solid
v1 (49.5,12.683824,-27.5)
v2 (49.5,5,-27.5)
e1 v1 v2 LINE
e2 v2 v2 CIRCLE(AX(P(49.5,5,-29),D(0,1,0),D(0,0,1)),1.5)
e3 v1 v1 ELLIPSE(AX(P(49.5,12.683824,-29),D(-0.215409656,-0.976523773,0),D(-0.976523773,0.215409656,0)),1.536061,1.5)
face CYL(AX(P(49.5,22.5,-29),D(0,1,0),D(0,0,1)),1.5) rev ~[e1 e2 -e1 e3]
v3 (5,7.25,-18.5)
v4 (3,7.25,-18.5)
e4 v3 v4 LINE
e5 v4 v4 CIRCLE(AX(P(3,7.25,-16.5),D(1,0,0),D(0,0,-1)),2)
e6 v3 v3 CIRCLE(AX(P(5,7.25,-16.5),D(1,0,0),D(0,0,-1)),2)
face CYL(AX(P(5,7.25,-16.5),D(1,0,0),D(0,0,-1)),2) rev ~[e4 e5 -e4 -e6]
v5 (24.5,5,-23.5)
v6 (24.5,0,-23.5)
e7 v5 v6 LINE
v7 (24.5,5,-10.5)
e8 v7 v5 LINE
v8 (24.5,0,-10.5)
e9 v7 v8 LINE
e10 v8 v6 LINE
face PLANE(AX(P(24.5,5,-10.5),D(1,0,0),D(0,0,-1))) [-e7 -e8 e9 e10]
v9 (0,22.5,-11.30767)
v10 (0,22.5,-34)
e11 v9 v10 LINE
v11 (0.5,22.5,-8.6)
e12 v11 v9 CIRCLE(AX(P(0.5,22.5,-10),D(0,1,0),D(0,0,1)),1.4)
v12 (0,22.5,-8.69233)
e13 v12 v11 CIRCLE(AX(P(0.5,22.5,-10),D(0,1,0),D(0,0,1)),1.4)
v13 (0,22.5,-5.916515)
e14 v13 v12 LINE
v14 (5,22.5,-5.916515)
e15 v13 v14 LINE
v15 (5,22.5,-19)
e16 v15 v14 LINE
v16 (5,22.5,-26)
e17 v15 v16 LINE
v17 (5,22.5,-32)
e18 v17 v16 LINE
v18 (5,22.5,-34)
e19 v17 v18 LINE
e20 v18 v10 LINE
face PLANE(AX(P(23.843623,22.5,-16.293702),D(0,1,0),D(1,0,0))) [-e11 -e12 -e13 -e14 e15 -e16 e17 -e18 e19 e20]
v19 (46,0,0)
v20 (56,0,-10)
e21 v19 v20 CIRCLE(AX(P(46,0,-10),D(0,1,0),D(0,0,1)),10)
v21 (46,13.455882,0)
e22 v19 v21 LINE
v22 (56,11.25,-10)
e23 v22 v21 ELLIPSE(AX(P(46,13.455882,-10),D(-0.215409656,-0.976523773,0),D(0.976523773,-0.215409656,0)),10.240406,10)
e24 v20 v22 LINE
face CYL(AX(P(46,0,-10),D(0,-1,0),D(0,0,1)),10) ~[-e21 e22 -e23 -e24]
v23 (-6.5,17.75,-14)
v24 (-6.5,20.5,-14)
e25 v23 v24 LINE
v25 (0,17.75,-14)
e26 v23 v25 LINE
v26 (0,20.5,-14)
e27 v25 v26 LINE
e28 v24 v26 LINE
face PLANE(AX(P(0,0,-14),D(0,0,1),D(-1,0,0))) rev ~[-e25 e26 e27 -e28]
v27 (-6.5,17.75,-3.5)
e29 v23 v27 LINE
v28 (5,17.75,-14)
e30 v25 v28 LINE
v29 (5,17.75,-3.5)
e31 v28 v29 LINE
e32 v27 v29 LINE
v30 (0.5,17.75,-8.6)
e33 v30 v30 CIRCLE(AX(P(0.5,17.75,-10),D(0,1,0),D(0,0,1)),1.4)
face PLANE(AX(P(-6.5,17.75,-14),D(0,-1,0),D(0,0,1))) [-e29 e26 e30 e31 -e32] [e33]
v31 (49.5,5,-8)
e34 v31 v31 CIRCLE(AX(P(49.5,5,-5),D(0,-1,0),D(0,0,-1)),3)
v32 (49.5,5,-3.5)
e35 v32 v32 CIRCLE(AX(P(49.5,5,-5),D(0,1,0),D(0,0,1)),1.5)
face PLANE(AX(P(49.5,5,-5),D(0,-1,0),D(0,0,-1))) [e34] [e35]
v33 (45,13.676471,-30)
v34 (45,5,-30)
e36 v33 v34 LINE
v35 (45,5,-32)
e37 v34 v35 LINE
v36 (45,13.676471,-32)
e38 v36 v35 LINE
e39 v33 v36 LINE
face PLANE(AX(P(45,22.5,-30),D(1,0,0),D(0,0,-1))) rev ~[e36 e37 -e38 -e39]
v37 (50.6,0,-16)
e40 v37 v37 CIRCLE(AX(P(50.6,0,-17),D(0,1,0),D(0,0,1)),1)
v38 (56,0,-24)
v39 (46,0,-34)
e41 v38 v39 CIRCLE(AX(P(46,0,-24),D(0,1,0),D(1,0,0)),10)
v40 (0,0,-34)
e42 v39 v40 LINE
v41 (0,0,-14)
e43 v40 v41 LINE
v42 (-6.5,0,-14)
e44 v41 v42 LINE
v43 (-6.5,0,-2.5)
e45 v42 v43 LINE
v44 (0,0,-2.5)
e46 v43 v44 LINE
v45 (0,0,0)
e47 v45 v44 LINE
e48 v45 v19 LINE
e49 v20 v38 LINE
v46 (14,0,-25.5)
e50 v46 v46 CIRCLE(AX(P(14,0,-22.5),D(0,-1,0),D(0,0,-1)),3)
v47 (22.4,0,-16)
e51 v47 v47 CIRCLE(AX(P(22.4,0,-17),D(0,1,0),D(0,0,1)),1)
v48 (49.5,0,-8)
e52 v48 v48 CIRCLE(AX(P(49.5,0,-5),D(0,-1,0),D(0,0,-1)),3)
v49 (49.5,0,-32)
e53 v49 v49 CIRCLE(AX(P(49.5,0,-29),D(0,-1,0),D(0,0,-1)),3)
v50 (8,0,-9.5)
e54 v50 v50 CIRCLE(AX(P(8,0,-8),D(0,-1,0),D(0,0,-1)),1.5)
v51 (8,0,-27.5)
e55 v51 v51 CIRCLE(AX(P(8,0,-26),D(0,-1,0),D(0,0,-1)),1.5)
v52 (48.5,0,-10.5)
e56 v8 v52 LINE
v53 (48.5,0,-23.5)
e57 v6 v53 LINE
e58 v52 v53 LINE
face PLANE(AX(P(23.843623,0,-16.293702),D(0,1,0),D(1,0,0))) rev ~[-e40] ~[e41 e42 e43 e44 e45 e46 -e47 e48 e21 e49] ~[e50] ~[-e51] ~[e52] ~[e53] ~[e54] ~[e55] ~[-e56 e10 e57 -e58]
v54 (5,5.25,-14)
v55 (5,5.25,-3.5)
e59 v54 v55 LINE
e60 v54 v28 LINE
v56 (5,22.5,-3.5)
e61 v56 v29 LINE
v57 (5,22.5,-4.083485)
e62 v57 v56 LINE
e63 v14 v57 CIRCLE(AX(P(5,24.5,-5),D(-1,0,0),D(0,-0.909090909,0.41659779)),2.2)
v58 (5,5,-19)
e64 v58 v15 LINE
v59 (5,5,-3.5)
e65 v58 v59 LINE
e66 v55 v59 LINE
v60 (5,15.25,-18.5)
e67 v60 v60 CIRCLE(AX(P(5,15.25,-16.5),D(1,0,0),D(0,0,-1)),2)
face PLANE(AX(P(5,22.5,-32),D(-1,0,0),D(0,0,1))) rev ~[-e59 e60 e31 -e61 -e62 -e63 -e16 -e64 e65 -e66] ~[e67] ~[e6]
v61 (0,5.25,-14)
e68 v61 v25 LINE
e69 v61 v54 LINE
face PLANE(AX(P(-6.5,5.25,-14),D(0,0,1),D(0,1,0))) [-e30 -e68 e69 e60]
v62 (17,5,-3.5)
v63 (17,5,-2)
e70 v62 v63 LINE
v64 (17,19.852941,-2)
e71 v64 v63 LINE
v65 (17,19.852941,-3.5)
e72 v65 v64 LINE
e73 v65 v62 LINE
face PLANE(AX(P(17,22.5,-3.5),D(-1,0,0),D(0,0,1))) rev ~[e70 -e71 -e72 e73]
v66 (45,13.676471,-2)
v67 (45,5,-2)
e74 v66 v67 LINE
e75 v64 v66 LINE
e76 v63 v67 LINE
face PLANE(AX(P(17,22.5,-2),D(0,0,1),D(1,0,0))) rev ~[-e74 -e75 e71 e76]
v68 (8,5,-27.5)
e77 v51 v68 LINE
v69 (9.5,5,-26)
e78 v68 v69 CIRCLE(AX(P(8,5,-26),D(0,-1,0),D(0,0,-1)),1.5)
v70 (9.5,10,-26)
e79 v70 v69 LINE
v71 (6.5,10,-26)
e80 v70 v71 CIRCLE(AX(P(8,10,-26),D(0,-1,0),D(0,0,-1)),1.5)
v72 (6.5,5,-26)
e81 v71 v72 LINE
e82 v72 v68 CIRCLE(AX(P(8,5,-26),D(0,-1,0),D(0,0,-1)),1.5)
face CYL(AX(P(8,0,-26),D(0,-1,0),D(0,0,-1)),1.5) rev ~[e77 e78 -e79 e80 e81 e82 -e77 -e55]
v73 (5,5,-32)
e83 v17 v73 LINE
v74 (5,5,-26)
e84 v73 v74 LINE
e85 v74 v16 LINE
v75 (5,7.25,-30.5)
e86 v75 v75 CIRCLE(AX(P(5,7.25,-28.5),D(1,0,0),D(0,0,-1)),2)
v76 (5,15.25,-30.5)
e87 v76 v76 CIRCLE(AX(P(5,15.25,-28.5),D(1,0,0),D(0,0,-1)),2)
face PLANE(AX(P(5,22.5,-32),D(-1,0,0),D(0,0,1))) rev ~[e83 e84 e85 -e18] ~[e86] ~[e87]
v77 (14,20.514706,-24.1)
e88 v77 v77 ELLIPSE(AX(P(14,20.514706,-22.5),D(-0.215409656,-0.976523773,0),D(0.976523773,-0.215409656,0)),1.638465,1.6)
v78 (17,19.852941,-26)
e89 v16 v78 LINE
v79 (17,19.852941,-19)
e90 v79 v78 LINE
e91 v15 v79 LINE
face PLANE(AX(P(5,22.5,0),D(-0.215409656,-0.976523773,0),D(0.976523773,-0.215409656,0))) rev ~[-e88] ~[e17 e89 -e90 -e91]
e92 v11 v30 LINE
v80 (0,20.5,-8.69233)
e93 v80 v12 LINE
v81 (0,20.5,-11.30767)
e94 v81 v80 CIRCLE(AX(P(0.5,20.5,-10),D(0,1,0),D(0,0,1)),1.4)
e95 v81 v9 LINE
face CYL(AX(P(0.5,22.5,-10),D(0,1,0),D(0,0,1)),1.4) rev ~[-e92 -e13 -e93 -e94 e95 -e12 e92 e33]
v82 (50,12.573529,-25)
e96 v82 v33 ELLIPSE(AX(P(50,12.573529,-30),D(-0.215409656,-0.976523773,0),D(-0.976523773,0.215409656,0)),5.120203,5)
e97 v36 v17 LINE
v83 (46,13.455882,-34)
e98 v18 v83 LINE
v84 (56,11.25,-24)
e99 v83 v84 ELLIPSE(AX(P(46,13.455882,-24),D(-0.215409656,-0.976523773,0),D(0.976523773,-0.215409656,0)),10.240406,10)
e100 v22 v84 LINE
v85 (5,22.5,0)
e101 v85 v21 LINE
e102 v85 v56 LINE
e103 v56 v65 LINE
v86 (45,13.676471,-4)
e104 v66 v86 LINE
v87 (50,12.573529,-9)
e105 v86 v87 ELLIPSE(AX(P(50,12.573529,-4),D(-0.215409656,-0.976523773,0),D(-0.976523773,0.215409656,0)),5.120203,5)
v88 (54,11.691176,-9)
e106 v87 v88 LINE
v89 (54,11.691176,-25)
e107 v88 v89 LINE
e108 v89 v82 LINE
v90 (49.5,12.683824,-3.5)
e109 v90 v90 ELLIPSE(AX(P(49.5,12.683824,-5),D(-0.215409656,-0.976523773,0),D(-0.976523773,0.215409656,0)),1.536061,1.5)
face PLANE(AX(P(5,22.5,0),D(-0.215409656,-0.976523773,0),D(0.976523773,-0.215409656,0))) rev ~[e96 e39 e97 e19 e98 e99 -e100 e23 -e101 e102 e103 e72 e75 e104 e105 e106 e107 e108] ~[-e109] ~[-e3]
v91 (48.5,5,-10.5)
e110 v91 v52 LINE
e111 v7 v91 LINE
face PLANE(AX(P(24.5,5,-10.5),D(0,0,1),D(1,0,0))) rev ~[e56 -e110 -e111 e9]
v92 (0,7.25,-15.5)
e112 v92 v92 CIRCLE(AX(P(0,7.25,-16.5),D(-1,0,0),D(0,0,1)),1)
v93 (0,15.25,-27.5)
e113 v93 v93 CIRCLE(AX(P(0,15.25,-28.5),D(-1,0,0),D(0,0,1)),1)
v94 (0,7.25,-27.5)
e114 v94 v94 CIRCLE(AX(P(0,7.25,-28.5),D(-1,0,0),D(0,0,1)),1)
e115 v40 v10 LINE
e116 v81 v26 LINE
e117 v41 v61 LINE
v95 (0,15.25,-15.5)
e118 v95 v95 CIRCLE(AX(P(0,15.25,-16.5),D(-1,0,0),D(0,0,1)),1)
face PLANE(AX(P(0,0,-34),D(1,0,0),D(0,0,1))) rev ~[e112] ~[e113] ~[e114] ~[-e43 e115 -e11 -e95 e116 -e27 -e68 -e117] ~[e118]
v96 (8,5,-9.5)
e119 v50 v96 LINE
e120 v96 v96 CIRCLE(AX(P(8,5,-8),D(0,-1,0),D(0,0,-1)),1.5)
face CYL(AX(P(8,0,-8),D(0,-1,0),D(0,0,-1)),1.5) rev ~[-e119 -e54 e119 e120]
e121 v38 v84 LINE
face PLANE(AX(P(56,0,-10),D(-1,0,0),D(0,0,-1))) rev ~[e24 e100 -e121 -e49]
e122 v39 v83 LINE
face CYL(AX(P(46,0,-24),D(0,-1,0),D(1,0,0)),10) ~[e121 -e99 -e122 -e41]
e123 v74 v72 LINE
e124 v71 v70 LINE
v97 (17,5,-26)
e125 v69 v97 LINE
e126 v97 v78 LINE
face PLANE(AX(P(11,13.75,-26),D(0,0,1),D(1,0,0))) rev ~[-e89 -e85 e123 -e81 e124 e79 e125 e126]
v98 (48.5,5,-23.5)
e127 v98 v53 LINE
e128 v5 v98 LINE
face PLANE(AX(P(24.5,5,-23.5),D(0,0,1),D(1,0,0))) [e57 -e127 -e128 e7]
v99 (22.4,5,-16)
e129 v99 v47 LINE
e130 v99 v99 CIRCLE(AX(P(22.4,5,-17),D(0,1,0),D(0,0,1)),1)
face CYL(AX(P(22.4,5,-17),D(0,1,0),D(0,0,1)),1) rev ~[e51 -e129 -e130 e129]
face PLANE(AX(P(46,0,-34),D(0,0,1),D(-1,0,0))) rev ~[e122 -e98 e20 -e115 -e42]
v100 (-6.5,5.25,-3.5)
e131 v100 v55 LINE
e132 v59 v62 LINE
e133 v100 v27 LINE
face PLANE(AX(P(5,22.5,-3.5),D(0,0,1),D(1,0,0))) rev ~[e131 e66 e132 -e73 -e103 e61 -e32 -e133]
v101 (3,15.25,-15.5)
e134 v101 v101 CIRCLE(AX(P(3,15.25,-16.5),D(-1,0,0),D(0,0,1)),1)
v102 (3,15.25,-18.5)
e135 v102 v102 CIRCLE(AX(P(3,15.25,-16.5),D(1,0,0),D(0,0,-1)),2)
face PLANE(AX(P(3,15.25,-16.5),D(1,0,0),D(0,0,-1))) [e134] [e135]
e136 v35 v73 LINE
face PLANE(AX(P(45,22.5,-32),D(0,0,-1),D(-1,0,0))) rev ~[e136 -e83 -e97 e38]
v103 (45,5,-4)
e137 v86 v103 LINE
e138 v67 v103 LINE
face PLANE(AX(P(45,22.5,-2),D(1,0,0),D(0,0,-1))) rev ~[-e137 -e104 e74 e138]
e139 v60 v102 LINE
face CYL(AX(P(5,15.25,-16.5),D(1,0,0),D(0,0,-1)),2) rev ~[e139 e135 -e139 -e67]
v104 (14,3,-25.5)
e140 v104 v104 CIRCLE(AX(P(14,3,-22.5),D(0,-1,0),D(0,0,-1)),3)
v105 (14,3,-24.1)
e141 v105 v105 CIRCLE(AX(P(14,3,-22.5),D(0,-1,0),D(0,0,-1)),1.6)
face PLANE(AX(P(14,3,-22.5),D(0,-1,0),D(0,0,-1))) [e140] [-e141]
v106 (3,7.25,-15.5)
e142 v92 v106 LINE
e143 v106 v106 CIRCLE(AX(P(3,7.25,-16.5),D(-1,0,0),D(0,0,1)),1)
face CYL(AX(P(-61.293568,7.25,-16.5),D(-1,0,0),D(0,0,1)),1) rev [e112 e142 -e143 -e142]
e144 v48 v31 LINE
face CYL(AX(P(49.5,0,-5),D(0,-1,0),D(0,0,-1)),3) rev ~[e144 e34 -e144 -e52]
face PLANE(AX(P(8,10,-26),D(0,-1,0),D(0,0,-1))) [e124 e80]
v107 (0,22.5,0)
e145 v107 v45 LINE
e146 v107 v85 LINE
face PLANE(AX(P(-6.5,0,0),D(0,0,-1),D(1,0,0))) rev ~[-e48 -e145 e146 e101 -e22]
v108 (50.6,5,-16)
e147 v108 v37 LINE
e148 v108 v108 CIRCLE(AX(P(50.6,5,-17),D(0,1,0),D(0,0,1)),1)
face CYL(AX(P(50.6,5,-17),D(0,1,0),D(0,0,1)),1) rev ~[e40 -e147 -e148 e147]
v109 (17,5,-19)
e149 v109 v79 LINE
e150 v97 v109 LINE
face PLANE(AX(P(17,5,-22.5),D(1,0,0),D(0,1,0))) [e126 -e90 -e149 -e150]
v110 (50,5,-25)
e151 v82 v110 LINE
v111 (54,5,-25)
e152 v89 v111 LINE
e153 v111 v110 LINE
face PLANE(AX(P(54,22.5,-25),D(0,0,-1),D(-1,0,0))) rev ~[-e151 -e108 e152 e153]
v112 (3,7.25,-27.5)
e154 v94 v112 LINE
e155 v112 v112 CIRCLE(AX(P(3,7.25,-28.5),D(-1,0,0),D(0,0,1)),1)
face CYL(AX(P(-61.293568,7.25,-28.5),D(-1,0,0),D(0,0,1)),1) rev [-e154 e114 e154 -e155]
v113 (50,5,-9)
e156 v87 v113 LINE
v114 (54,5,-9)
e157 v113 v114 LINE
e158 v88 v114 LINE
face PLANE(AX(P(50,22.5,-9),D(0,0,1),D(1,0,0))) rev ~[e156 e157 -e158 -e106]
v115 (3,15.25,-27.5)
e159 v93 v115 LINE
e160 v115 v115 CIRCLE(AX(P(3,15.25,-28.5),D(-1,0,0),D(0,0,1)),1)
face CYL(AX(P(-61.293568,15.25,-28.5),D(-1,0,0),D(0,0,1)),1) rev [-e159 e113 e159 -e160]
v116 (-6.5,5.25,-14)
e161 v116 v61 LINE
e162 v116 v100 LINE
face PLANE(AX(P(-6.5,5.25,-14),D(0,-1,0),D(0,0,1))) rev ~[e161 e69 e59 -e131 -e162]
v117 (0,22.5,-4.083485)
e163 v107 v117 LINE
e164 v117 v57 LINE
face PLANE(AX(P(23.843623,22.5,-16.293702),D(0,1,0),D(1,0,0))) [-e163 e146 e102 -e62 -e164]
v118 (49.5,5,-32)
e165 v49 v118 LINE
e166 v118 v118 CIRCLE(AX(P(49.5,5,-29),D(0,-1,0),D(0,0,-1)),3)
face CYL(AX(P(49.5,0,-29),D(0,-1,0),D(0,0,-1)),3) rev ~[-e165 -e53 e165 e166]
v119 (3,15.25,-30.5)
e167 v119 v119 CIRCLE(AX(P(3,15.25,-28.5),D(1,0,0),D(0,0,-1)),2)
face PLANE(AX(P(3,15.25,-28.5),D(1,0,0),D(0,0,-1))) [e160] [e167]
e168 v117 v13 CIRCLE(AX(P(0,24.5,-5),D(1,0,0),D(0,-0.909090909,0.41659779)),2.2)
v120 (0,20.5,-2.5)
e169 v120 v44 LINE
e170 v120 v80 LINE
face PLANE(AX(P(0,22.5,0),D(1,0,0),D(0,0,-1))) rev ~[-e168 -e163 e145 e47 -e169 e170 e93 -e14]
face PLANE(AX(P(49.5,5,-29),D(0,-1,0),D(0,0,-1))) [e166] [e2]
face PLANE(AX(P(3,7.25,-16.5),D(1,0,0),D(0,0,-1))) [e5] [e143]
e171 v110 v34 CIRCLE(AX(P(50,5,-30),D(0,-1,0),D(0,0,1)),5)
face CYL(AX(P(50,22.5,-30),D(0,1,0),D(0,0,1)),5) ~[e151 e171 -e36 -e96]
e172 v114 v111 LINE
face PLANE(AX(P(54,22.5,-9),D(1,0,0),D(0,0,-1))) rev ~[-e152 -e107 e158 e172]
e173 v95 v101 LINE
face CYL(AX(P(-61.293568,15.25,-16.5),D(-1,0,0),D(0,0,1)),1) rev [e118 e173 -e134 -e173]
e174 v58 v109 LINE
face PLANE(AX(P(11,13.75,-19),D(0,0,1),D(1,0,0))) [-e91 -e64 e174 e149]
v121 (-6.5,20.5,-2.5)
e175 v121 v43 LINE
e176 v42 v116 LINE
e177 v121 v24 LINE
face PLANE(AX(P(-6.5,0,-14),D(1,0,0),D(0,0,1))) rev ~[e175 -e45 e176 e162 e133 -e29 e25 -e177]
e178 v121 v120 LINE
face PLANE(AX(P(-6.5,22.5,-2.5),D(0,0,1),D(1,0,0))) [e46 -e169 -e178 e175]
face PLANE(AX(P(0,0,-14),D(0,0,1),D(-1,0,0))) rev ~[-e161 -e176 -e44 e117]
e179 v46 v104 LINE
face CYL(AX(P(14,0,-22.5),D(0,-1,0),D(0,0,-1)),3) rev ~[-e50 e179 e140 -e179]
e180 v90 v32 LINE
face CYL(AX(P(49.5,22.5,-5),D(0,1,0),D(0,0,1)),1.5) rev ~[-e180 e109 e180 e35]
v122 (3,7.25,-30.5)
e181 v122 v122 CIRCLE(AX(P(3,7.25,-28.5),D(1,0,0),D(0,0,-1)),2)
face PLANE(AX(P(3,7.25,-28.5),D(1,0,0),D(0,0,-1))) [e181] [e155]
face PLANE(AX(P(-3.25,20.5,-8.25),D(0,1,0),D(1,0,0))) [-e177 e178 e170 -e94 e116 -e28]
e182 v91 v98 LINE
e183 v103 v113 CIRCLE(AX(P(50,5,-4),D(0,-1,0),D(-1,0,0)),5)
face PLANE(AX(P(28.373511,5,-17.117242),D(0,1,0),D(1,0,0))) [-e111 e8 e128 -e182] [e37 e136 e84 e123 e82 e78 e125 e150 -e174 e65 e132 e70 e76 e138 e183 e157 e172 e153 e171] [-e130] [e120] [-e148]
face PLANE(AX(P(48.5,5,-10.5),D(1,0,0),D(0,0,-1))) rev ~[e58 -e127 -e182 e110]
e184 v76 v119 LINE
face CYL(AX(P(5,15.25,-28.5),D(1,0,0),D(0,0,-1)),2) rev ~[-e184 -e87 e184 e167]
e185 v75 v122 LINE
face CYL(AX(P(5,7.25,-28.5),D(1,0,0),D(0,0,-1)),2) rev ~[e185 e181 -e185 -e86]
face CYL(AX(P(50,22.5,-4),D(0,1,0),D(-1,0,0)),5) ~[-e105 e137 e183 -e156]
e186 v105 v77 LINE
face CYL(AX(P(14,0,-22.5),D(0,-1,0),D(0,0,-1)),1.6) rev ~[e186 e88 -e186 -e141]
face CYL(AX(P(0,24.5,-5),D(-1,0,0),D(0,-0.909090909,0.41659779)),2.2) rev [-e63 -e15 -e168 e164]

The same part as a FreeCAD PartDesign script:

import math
import FreeCAD as App
import Part
import Sketcher
from FreeCAD import Vector

doc = App.newDocument("Part")
body = doc.addObject("PartDesign::Body", "Body")

sketch1 = body.newObject("Sketcher::SketchObject", "Sketch")
sketch1.AttachmentSupport = (doc.getObject("XZ_Plane"), [""])
sketch1.MapMode = "FlatFace"
sketch1.addGeometry([
    Part.ArcOfCircle(Part.Circle(Vector(46, -10, 0), Vector(0, 0, 1), 10), math.radians(0), math.radians(90)),
    Part.LineSegment(Vector(56, -10, 0), Vector(56, -24, 0)),
    Part.ArcOfCircle(Part.Circle(Vector(46, -24, 0), Vector(0, 0, 1), 10), math.radians(-90), math.radians(0)),
    Part.LineSegment(Vector(46, -34, 0), Vector(0, -34, 0)),
    Part.LineSegment(Vector(0, -34, 0), Vector(0, -14, 0)),
    Part.LineSegment(Vector(0, -14, 0), Vector(-6.5, -14, 0)),
    Part.LineSegment(Vector(-6.5, -14, 0), Vector(-6.5, 0, 0)),
    Part.LineSegment(Vector(-6.5, 0, 0), Vector(46, 0, 0)),
], False)
sketch1.addConstraint([
    Sketcher.Constraint("Tangent", 0, 1, 1, 1),
    Sketcher.Constraint("Tangent", 1, 2, 2, 2),
    Sketcher.Constraint("Tangent", 2, 1, 3, 1),
    Sketcher.Constraint("Coincident", 3, 2, 4, 1),
    Sketcher.Constraint("Coincident", 4, 2, 5, 1),
    Sketcher.Constraint("Coincident", 5, 2, 6, 1),
    Sketcher.Constraint("Coincident", 6, 2, 7, 1),
    Sketcher.Constraint("Tangent", 7, 2, 0, 2),
    Sketcher.Constraint("Vertical", 1),
    Sketcher.Constraint("Horizontal", 3),
    Sketcher.Constraint("Vertical", 4),
    Sketcher.Constraint("Horizontal", 5),
    Sketcher.Constraint("Vertical", 6),
    Sketcher.Constraint("Horizontal", 7),
    Sketcher.Constraint("Equal", 0, 2),
    Sketcher.Constraint("PointOnObject", 3, 2, -2),
    Sketcher.Constraint("PointOnObject", 6, 2, -1),
    Sketcher.Constraint("Equal", 1, 6),
    Sketcher.Constraint("Radius", 0, 10.0),
    Sketcher.Constraint("DistanceX", 3, 2, 3, 1, 46.0),
    Sketcher.Constraint("DistanceY", 1, 2, 1, 1, 14.0),
    Sketcher.Constraint("DistanceX", 5, 2, 5, 1, 6.5),
])
pad1 = body.newObject("PartDesign::Pad", "Pad")
pad1.Profile = sketch1
pad1.Length = 22.5
pad1.Reversed = True

sketch2 = body.newObject("Sketcher::SketchObject", "Sketch001")
sketch2.AttachmentSupport = (doc.getObject("XZ_Plane"), [""])
sketch2.MapMode = "FlatFace"
sketch2.AttachmentOffset = App.Placement(Vector(0, 0, -22.5), App.Rotation())
sketch2.addGeometry([
    Part.LineSegment(Vector(45, -32, 0), Vector(5, -32, 0)),
    Part.LineSegment(Vector(5, -32, 0), Vector(5, -3.5, 0)),
    Part.LineSegment(Vector(5, -3.5, 0), Vector(17, -3.5, 0)),
    Part.LineSegment(Vector(17, -3.5, 0), Vector(17, -2, 0)),
    Part.LineSegment(Vector(17, -2, 0), Vector(45, -2, 0)),
    Part.LineSegment(Vector(45, -2, 0), Vector(45, -4, 0)),
    Part.ArcOfCircle(Part.Circle(Vector(50, -4, 0), Vector(0, 0, 1), 5), math.radians(180), math.radians(270)),
    Part.LineSegment(Vector(50, -9, 0), Vector(54, -9, 0)),
    Part.LineSegment(Vector(54, -9, 0), Vector(54, -25, 0)),
    Part.LineSegment(Vector(54, -25, 0), Vector(50, -25, 0)),
    Part.ArcOfCircle(Part.Circle(Vector(50, -30, 0), Vector(0, 0, 1), 5), math.radians(90), math.radians(180)),
    Part.LineSegment(Vector(45, -30, 0), Vector(45, -32, 0)),
], False)
sketch2.addConstraint([
    Sketcher.Constraint("Coincident", 0, 2, 1, 1),
    Sketcher.Constraint("Coincident", 1, 2, 2, 1),
    Sketcher.Constraint("Coincident", 2, 2, 3, 1),
    Sketcher.Constraint("Coincident", 3, 2, 4, 1),
    Sketcher.Constraint("Coincident", 4, 2, 5, 1),
    Sketcher.Constraint("Tangent", 5, 2, 6, 1),
    Sketcher.Constraint("Tangent", 6, 2, 7, 1),
    Sketcher.Constraint("Coincident", 7, 2, 8, 1),
    Sketcher.Constraint("Coincident", 8, 2, 9, 1),
    Sketcher.Constraint("Tangent", 9, 2, 10, 1),
    Sketcher.Constraint("Tangent", 10, 2, 11, 1),
    Sketcher.Constraint("Coincident", 11, 2, 0, 1),
    Sketcher.Constraint("Horizontal", 0),
    Sketcher.Constraint("Vertical", 1),
    Sketcher.Constraint("Horizontal", 2),
    Sketcher.Constraint("Vertical", 3),
    Sketcher.Constraint("Horizontal", 4),
    Sketcher.Constraint("Vertical", 5),
    Sketcher.Constraint("Horizontal", 7),
    Sketcher.Constraint("Vertical", 8),
    Sketcher.Constraint("Horizontal", 9),
    Sketcher.Constraint("Vertical", 11),
    Sketcher.Constraint("Equal", 6, 10),
    Sketcher.Constraint("Vertical", 6, 3, 10, 3),
    Sketcher.Constraint("Equal", 5, 11),
    Sketcher.Constraint("Radius", 6, 5.0),
    Sketcher.Constraint("DistanceX", 0, 2, 0, 1, 40.0),
    Sketcher.Constraint("DistanceX", 2, 1, 2, 2, 12.0),
    Sketcher.Constraint("DistanceX", 7, 1, 7, 2, 4.0),
    Sketcher.Constraint("DistanceY", 5, 2, 5, 1, 2.0),
    Sketcher.Constraint("DistanceY", 8, 2, 8, 1, 16.0),
    Sketcher.Constraint("DistanceY", 1, 1, 1, 2, 28.5),
    Sketcher.Constraint("DistanceX", -1, 1, 6, 3, 50.0),
    Sketcher.Constraint("DistanceY", 6, 3, -1, 1, 4.0),
])
pocket1 = body.newObject("PartDesign::Pocket", "Pocket")
pocket1.Profile = sketch2
pocket1.Length = 17.5
pocket1.Reversed = True

sketch3 = body.newObject("Sketcher::SketchObject", "Sketch002")
sketch3.AttachmentSupport = (doc.getObject("YZ_Plane"), [""])
sketch3.MapMode = "FlatFace"
sketch3.AttachmentOffset = App.Placement(Vector(0, 0, 5), App.Rotation())
sketch3.addGeometry([
    Part.Circle(Vector(15.25, -28.5, 0), Vector(0, 0, 1), 1),
    Part.Circle(Vector(7.25, -28.5, 0), Vector(0, 0, 1), 1),
    Part.Circle(Vector(7.25, -16.5, 0), Vector(0, 0, 1), 1),
    Part.Circle(Vector(15.25, -16.5, 0), Vector(0, 0, 1), 1),
], False)
sketch3.addConstraint([
    Sketcher.Constraint("Equal", 0, 1),
    Sketcher.Constraint("Equal", 1, 2),
    Sketcher.Constraint("Equal", 2, 3),
    Sketcher.Constraint("Horizontal", 0, 3, 1, 3),
    Sketcher.Constraint("Horizontal", 2, 3, 3, 3),
    Sketcher.Constraint("Vertical", 1, 3, 2, 3),
    Sketcher.Constraint("Vertical", 0, 3, 3, 3),
    Sketcher.Constraint("Diameter", 0, 2.0),
    Sketcher.Constraint("DistanceX", 1, 3, 0, 3, 8.0),
    Sketcher.Constraint("DistanceY", 1, 3, 2, 3, 12.0),
    Sketcher.Constraint("DistanceY", 0, 3, -1, 1, 28.5),
    Sketcher.Constraint("DistanceX", -1, 1, 0, 3, 15.25),
])
pocket2 = body.newObject("PartDesign::Pocket", "Pocket001")
pocket2.Profile = sketch3
pocket2.Type = "TwoLengths"
pocket2.Length = 15
pocket2.Length2 = 66.293568
pocket2.Reversed = True

sketch4 = body.newObject("Sketcher::SketchObject", "Sketch003")
sketch4.AttachmentSupport = (doc.getObject("YZ_Plane"), [""])
sketch4.MapMode = "FlatFace"
sketch4.AttachmentOffset = App.Placement(Vector(0, 0, -6.5), App.Rotation())
sketch4.addGeometry([
    Part.LineSegment(Vector(17.75, -14, 0), Vector(5.25, -14, 0)),
    Part.LineSegment(Vector(5.25, -14, 0), Vector(5.25, -3.5, 0)),
    Part.LineSegment(Vector(5.25, -3.5, 0), Vector(17.75, -3.5, 0)),
    Part.LineSegment(Vector(17.75, -3.5, 0), Vector(17.75, -14, 0)),
], False)
sketch4.addConstraint([
    Sketcher.Constraint("Coincident", 0, 2, 1, 1),
    Sketcher.Constraint("Coincident", 1, 2, 2, 1),
    Sketcher.Constraint("Coincident", 2, 2, 3, 1),
    Sketcher.Constraint("Coincident", 3, 2, 0, 1),
    Sketcher.Constraint("Horizontal", 0),
    Sketcher.Constraint("Vertical", 1),
    Sketcher.Constraint("Horizontal", 2),
    Sketcher.Constraint("Vertical", 3),
    Sketcher.Constraint("DistanceX", 0, 2, 0, 1, 12.5),
    Sketcher.Constraint("DistanceY", 1, 1, 1, 2, 10.5),
    Sketcher.Constraint("DistanceY", 0, 2, -1, 1, 14.0),
    Sketcher.Constraint("DistanceX", -1, 1, 0, 2, 5.25),
])
pocket3 = body.newObject("PartDesign::Pocket", "Pocket002")
pocket3.Profile = sketch4
pocket3.Length = 20
pocket3.Reversed = True

sketch5 = body.newObject("Sketcher::SketchObject", "Sketch004")
sketch5.AttachmentSupport = (doc.getObject("XZ_Plane"), [""])
sketch5.MapMode = "FlatFace"
sketch5.AttachmentOffset = App.Placement(Vector(0, 0, -22.5), App.Rotation())
sketch5.addGeometry(Part.Circle(Vector(0.5, -10, 0), Vector(0, 0, 1), 1.4), False)
sketch5.addConstraint([
    Sketcher.Constraint("Diameter", 0, 2.8),
    Sketcher.Constraint("DistanceY", 0, 3, -1, 1, 10.0),
    Sketcher.Constraint("DistanceX", -1, 1, 0, 3, 0.5),
])
pocket4 = body.newObject("PartDesign::Pocket", "Pocket003")
pocket4.Profile = sketch5
pocket4.Length = 10
pocket4.Reversed = True

sketch6 = body.newObject("Sketcher::SketchObject", "Sketch005")
sketch6.AttachmentSupport = (doc.getObject("XZ_Plane"), [""])
sketch6.MapMode = "FlatFace"
sketch6.AttachmentOffset = App.Placement(Vector(0, 0, -5), App.Rotation())
sketch6.addGeometry([
    Part.Circle(Vector(50.6, -17, 0), Vector(0, 0, 1), 1),
    Part.Circle(Vector(22.4, -17, 0), Vector(0, 0, 1), 1),
    Part.LineSegment(Vector(24.5, -23.5, 0), Vector(24.5, -10.5, 0)),
    Part.LineSegment(Vector(24.5, -10.5, 0), Vector(48.5, -10.5, 0)),
    Part.LineSegment(Vector(48.5, -10.5, 0), Vector(48.5, -23.5, 0)),
    Part.LineSegment(Vector(48.5, -23.5, 0), Vector(24.5, -23.5, 0)),
], False)
sketch6.addConstraint([
    Sketcher.Constraint("Coincident", 2, 2, 3, 1),
    Sketcher.Constraint("Coincident", 3, 2, 4, 1),
    Sketcher.Constraint("Coincident", 4, 2, 5, 1),
    Sketcher.Constraint("Coincident", 5, 2, 2, 1),
    Sketcher.Constraint("Vertical", 2),
    Sketcher.Constraint("Horizontal", 3),
    Sketcher.Constraint("Vertical", 4),
    Sketcher.Constraint("Horizontal", 5),
    Sketcher.Constraint("Equal", 0, 1),
    Sketcher.Constraint("Horizontal", 0, 3, 1, 3),
    Sketcher.Constraint("Diameter", 0, 2.0),
    Sketcher.Constraint("DistanceX", 3, 1, 3, 2, 24.0),
    Sketcher.Constraint("DistanceY", 2, 1, 2, 2, 13.0),
    Sketcher.Constraint("DistanceY", 0, 3, -1, 1, 17.0),
    Sketcher.Constraint("DistanceX", -1, 1, 0, 3, 50.6),
    Sketcher.Constraint("DistanceX", -1, 1, 1, 3, 22.4),
    Sketcher.Constraint("DistanceX", -1, 1, 2, 2, 24.5),
    Sketcher.Constraint("DistanceY", 2, 2, -1, 1, 10.5),
])
pocket5 = body.newObject("PartDesign::Pocket", "Pocket004")
pocket5.Profile = sketch6
pocket5.Type = "ThroughAll"
pocket5.Reversed = True

sketch7 = body.newObject("Sketcher::SketchObject", "Sketch006")
sketch7.AttachmentSupport = (doc.getObject("XZ_Plane"), [""])
sketch7.MapMode = "FlatFace"
sketch7.AttachmentOffset = App.Placement(Vector(0, 0, -22.5), App.Rotation())
sketch7.addGeometry([
    Part.Circle(Vector(49.5, -29, 0), Vector(0, 0, 1), 1.5),
    Part.Circle(Vector(49.5, -5, 0), Vector(0, 0, 1), 1.5),
], False)
sketch7.addConstraint([
    Sketcher.Constraint("Equal", 0, 1),
    Sketcher.Constraint("Vertical", 0, 3, 1, 3),
    Sketcher.Constraint("Diameter", 0, 3.0),
    Sketcher.Constraint("DistanceY", 0, 3, -1, 1, 29.0),
    Sketcher.Constraint("DistanceY", 1, 3, -1, 1, 5.0),
    Sketcher.Constraint("DistanceX", -1, 1, 0, 3, 49.5),
])
pocket6 = body.newObject("PartDesign::Pocket", "Pocket005")
pocket6.Profile = sketch7
pocket6.Type = "ThroughAll"
pocket6.Reversed = True

sketch8 = body.newObject("Sketcher::SketchObject", "Sketch007")
sketch8.AttachmentSupport = (doc.getObject("XZ_Plane"), [""])
sketch8.MapMode = "FlatFace"
sketch8.addGeometry([
    Part.Circle(Vector(49.5, -5, 0), Vector(0, 0, 1), 3),
    Part.Circle(Vector(49.5, -29, 0), Vector(0, 0, 1), 3),
], False)
sketch8.addConstraint([
    Sketcher.Constraint("Equal", 0, 1),
    Sketcher.Constraint("Vertical", 0, 3, 1, 3),
    Sketcher.Constraint("Diameter", 0, 6.0),
    Sketcher.Constraint("DistanceY", 0, 3, -1, 1, 5.0),
    Sketcher.Constraint("DistanceY", 1, 3, -1, 1, 29.0),
    Sketcher.Constraint("DistanceX", -1, 1, 0, 3, 49.5),
])
pocket7 = body.newObject("PartDesign::Pocket", "Pocket006")
pocket7.Profile = sketch8
pocket7.Length = 5

sketch9 = body.newObject("Sketcher::SketchObject", "Sketch008")
sketch9.AttachmentSupport = (doc.getObject("XY_Plane"), [""])
sketch9.MapMode = "FlatFace"
sketch9.AttachmentOffset = App.Placement(Vector(0, 0, -22.5), App.Rotation())
sketch9.addGeometry([
    Part.LineSegment(Vector(5, 22.5, 0), Vector(5, 5, 0)),
    Part.LineSegment(Vector(5, 5, 0), Vector(17, 5, 0)),
    Part.LineSegment(Vector(17, 5, 0), Vector(17, 22.5, 0)),
    Part.LineSegment(Vector(17, 22.5, 0), Vector(5, 22.5, 0)),
], False)
sketch9.addConstraint([
    Sketcher.Constraint("Coincident", 0, 2, 1, 1),
    Sketcher.Constraint("Coincident", 1, 2, 2, 1),
    Sketcher.Constraint("Coincident", 2, 2, 3, 1),
    Sketcher.Constraint("Coincident", 3, 2, 0, 1),
    Sketcher.Constraint("Vertical", 0),
    Sketcher.Constraint("Horizontal", 1),
    Sketcher.Constraint("Vertical", 2),
    Sketcher.Constraint("Horizontal", 3),
    Sketcher.Constraint("DistanceX", 1, 1, 1, 2, 12.0),
    Sketcher.Constraint("DistanceY", 0, 2, 0, 1, 17.5),
    Sketcher.Constraint("DistanceX", -1, 1, 0, 2, 5.0),
    Sketcher.Constraint("DistanceY", -1, 1, 0, 2, 5.0),
])
pad2 = body.newObject("PartDesign::Pad", "Pad001")
pad2.Profile = sketch9
pad2.Length = 7
pad2.Midplane = True

sketch10 = body.newObject("Sketcher::SketchObject", "Sketch009")
sketch10.AttachmentSupport = (doc.getObject("XZ_Plane"), [""])
sketch10.MapMode = "FlatFace"
sketch10.addGeometry([
    Part.Circle(Vector(8, -8, 0), Vector(0, 0, 1), 1.5),
    Part.Circle(Vector(8, -26, 0), Vector(0, 0, 1), 1.5),
], False)
sketch10.addConstraint([
    Sketcher.Constraint("Equal", 0, 1),
    Sketcher.Constraint("Vertical", 0, 3, 1, 3),
    Sketcher.Constraint("Diameter", 0, 3.0),
    Sketcher.Constraint("DistanceX", -1, 1, 0, 3, 8.0),
    Sketcher.Constraint("DistanceY", 0, 3, -1, 1, 8.0),
    Sketcher.Constraint("DistanceY", 1, 3, -1, 1, 26.0),
])
pocket8 = body.newObject("PartDesign::Pocket", "Pocket007")
pocket8.Profile = sketch10
pocket8.Length = 10

sketch11 = body.newObject("Sketcher::SketchObject", "Sketch010")
sketch11.AttachmentSupport = (doc.getObject("YZ_Plane"), [""])
sketch11.MapMode = "FlatFace"
sketch11.AttachmentOffset = App.Placement(Vector(0, 0, 5), App.Rotation())
sketch11.addGeometry([
    Part.Circle(Vector(15.25, -28.5, 0), Vector(0, 0, 1), 2),
    Part.Circle(Vector(7.25, -28.5, 0), Vector(0, 0, 1), 2),
    Part.Circle(Vector(7.25, -16.5, 0), Vector(0, 0, 1), 2),
    Part.Circle(Vector(15.25, -16.5, 0), Vector(0, 0, 1), 2),
], False)
sketch11.addConstraint([
    Sketcher.Constraint("Equal", 0, 1),
    Sketcher.Constraint("Equal", 1, 2),
    Sketcher.Constraint("Equal", 2, 3),
    Sketcher.Constraint("Horizontal", 0, 3, 1, 3),
    Sketcher.Constraint("Horizontal", 2, 3, 3, 3),
    Sketcher.Constraint("Vertical", 1, 3, 2, 3),
    Sketcher.Constraint("Vertical", 0, 3, 3, 3),
    Sketcher.Constraint("Diameter", 0, 4.0),
    Sketcher.Constraint("DistanceX", 1, 3, 0, 3, 8.0),
    Sketcher.Constraint("DistanceY", 1, 3, 2, 3, 12.0),
    Sketcher.Constraint("DistanceY", 0, 3, -1, 1, 28.5),
    Sketcher.Constraint("DistanceX", -1, 1, 0, 3, 15.25),
])
pocket9 = body.newObject("PartDesign::Pocket", "Pocket008")
pocket9.Profile = sketch11
pocket9.Length = 2

sketch12 = body.newObject("Sketcher::SketchObject", "Sketch011")
sketch12.AttachmentSupport = (doc.getObject("XZ_Plane"), [""])
sketch12.MapMode = "FlatFace"
sketch12.AttachmentOffset = App.Placement(Vector(0, 0, -22.5), App.Rotation())
sketch12.addGeometry([
    Part.LineSegment(Vector(-6.5, -2.5, 0), Vector(-6.5, 0, 0)),
    Part.LineSegment(Vector(-6.5, 0, 0), Vector(0, 0, 0)),
    Part.LineSegment(Vector(0, 0, 0), Vector(0, -2.5, 0)),
    Part.LineSegment(Vector(0, -2.5, 0), Vector(-6.5, -2.5, 0)),
], False)
sketch12.addConstraint([
    Sketcher.Constraint("Coincident", 0, 2, 1, 1),
    Sketcher.Constraint("Coincident", 1, 2, 2, 1),
    Sketcher.Constraint("Coincident", 2, 2, 3, 1),
    Sketcher.Constraint("Coincident", 3, 2, 0, 1),
    Sketcher.Constraint("Vertical", 0),
    Sketcher.Constraint("Horizontal", 1),
    Sketcher.Constraint("Vertical", 2),
    Sketcher.Constraint("Horizontal", 3),
    Sketcher.Constraint("Coincident", 1, 2, -1, 1),
    Sketcher.Constraint("DistanceX", 1, 1, 1, 2, 6.5),
    Sketcher.Constraint("DistanceY", 0, 1, 0, 2, 2.5),
])
pocket10 = body.newObject("PartDesign::Pocket", "Pocket009")
pocket10.Profile = sketch12
pocket10.Type = "ThroughAll"
pocket10.Reversed = True

sketch13 = body.newObject("Sketcher::SketchObject", "Sketch012")
sketch13.AttachmentSupport = (doc.getObject("XY_Plane"), [""])
sketch13.MapMode = "FlatFace"
sketch13.addGeometry([
    Part.LineSegment(Vector(5, 22.5, 0), Vector(56, 11.25, 0)),
    Part.LineSegment(Vector(56, 11.25, 0), Vector(56, 22.5, 0)),
    Part.LineSegment(Vector(56, 22.5, 0), Vector(5, 22.5, 0)),
], False)
sketch13.addConstraint([
    Sketcher.Constraint("Coincident", 0, 2, 1, 1),
    Sketcher.Constraint("Coincident", 1, 2, 2, 1),
    Sketcher.Constraint("Coincident", 2, 2, 0, 1),
    Sketcher.Constraint("Vertical", 1),
    Sketcher.Constraint("Horizontal", 2),
    Sketcher.Constraint("DistanceX", 2, 2, 2, 1, 51.0),
    Sketcher.Constraint("DistanceX", -1, 1, 0, 2, 56.0),
    Sketcher.Constraint("DistanceY", 1, 1, 1, 2, 11.25),
    Sketcher.Constraint("DistanceY", -1, 1, 1, 2, 22.5),
])
pocket11 = body.newObject("PartDesign::Pocket", "Pocket010")
pocket11.Profile = sketch13
pocket11.Type = "ThroughAll"

sketch14 = body.newObject("Sketcher::SketchObject", "Sketch013")
sketch14.AttachmentSupport = (doc.getObject("XZ_Plane"), [""])
sketch14.MapMode = "FlatFace"
sketch14.addGeometry(Part.Circle(Vector(14, -22.5, 0), Vector(0, 0, 1), 1.6), False)
sketch14.addConstraint([
    Sketcher.Constraint("Diameter", 0, 3.2),
    Sketcher.Constraint("DistanceX", -1, 1, 0, 3, 14.0),
    Sketcher.Constraint("DistanceY", 0, 3, -1, 1, 22.5),
])
pocket12 = body.newObject("PartDesign::Pocket", "Pocket011")
pocket12.Profile = sketch14
pocket12.Type = "ThroughAll"

sketch15 = body.newObject("Sketcher::SketchObject", "Sketch014")
sketch15.AttachmentSupport = (doc.getObject("XZ_Plane"), [""])
sketch15.MapMode = "FlatFace"
sketch15.addGeometry(Part.Circle(Vector(14, -22.5, 0), Vector(0, 0, 1), 3), False)
sketch15.addConstraint([
    Sketcher.Constraint("Diameter", 0, 6.0),
    Sketcher.Constraint("DistanceX", -1, 1, 0, 3, 14.0),
    Sketcher.Constraint("DistanceY", 0, 3, -1, 1, 22.5),
])
pocket13 = body.newObject("PartDesign::Pocket", "Pocket012")
pocket13.Profile = sketch15
pocket13.Length = 3

sketch16 = body.newObject("Sketcher::SketchObject", "Sketch015")
sketch16.AttachmentSupport = (doc.getObject("YZ_Plane"), [""])
sketch16.MapMode = "FlatFace"
sketch16.addGeometry([
    Part.LineSegment(Vector(22.5, -4.083485, 0), Vector(22.5, -5.916515, 0)),
    Part.ArcOfCircle(Part.Circle(Vector(24.5, -5, 0), Vector(0, 0, 1), 2.2), math.radians(155.380023), math.radians(204.619977)),
], False)
sketch16.addConstraint([
    Sketcher.Constraint("Coincident", 0, 1, 1, 1),
    Sketcher.Constraint("Coincident", 1, 2, 0, 2),
    Sketcher.Constraint("Vertical", 0),
    Sketcher.Constraint("Radius", 1, 2.2),
    Sketcher.Constraint("DistanceY", 1, 3, -1, 1, 5.0),
    Sketcher.Constraint("DistanceX", 0, 1, 1, 3, 2.0),
    Sketcher.Constraint("DistanceX", -1, 1, 1, 3, 24.5),
])
pocket14 = body.newObject("PartDesign::Pocket", "Pocket013")
pocket14.Profile = sketch16
pocket14.Length = 10
pocket14.Reversed = True

sketch17 = body.newObject("Sketcher::SketchObject", "Sketch016")
sketch17.AttachmentSupport = (doc.getObject("XZ_Plane"), [""])
sketch17.MapMode = "FlatFace"
sketch17.AttachmentOffset = App.Placement(Vector(0, 0, -22.5), App.Rotation())
sketch17.addGeometry([
    Part.LineSegment(Vector(-6.5, -14, 0), Vector(-6.5, -2.5, 0)),
    Part.LineSegment(Vector(-6.5, -2.5, 0), Vector(0, -2.5, 0)),
    Part.LineSegment(Vector(0, -2.5, 0), Vector(0, -14, 0)),
    Part.LineSegment(Vector(0, -14, 0), Vector(-6.5, -14, 0)),
], False)
sketch17.addConstraint([
    Sketcher.Constraint("Coincident", 0, 2, 1, 1),
    Sketcher.Constraint("Coincident", 1, 2, 2, 1),
    Sketcher.Constraint("Coincident", 2, 2, 3, 1),
    Sketcher.Constraint("Coincident", 3, 2, 0, 1),
    Sketcher.Constraint("Vertical", 0),
    Sketcher.Constraint("Horizontal", 1),
    Sketcher.Constraint("Vertical", 2),
    Sketcher.Constraint("Horizontal", 3),
    Sketcher.Constraint("PointOnObject", 1, 2, -2),
    Sketcher.Constraint("DistanceX", 1, 1, 1, 2, 6.5),
    Sketcher.Constraint("DistanceY", 0, 1, 0, 2, 11.5),
    Sketcher.Constraint("DistanceY", 2, 2, -1, 1, 14.0),
])
pocket15 = body.newObject("PartDesign::Pocket", "Pocket014")
pocket15.Profile = sketch17
pocket15.Length = 2
pocket15.Reversed = True

doc.recompute()
